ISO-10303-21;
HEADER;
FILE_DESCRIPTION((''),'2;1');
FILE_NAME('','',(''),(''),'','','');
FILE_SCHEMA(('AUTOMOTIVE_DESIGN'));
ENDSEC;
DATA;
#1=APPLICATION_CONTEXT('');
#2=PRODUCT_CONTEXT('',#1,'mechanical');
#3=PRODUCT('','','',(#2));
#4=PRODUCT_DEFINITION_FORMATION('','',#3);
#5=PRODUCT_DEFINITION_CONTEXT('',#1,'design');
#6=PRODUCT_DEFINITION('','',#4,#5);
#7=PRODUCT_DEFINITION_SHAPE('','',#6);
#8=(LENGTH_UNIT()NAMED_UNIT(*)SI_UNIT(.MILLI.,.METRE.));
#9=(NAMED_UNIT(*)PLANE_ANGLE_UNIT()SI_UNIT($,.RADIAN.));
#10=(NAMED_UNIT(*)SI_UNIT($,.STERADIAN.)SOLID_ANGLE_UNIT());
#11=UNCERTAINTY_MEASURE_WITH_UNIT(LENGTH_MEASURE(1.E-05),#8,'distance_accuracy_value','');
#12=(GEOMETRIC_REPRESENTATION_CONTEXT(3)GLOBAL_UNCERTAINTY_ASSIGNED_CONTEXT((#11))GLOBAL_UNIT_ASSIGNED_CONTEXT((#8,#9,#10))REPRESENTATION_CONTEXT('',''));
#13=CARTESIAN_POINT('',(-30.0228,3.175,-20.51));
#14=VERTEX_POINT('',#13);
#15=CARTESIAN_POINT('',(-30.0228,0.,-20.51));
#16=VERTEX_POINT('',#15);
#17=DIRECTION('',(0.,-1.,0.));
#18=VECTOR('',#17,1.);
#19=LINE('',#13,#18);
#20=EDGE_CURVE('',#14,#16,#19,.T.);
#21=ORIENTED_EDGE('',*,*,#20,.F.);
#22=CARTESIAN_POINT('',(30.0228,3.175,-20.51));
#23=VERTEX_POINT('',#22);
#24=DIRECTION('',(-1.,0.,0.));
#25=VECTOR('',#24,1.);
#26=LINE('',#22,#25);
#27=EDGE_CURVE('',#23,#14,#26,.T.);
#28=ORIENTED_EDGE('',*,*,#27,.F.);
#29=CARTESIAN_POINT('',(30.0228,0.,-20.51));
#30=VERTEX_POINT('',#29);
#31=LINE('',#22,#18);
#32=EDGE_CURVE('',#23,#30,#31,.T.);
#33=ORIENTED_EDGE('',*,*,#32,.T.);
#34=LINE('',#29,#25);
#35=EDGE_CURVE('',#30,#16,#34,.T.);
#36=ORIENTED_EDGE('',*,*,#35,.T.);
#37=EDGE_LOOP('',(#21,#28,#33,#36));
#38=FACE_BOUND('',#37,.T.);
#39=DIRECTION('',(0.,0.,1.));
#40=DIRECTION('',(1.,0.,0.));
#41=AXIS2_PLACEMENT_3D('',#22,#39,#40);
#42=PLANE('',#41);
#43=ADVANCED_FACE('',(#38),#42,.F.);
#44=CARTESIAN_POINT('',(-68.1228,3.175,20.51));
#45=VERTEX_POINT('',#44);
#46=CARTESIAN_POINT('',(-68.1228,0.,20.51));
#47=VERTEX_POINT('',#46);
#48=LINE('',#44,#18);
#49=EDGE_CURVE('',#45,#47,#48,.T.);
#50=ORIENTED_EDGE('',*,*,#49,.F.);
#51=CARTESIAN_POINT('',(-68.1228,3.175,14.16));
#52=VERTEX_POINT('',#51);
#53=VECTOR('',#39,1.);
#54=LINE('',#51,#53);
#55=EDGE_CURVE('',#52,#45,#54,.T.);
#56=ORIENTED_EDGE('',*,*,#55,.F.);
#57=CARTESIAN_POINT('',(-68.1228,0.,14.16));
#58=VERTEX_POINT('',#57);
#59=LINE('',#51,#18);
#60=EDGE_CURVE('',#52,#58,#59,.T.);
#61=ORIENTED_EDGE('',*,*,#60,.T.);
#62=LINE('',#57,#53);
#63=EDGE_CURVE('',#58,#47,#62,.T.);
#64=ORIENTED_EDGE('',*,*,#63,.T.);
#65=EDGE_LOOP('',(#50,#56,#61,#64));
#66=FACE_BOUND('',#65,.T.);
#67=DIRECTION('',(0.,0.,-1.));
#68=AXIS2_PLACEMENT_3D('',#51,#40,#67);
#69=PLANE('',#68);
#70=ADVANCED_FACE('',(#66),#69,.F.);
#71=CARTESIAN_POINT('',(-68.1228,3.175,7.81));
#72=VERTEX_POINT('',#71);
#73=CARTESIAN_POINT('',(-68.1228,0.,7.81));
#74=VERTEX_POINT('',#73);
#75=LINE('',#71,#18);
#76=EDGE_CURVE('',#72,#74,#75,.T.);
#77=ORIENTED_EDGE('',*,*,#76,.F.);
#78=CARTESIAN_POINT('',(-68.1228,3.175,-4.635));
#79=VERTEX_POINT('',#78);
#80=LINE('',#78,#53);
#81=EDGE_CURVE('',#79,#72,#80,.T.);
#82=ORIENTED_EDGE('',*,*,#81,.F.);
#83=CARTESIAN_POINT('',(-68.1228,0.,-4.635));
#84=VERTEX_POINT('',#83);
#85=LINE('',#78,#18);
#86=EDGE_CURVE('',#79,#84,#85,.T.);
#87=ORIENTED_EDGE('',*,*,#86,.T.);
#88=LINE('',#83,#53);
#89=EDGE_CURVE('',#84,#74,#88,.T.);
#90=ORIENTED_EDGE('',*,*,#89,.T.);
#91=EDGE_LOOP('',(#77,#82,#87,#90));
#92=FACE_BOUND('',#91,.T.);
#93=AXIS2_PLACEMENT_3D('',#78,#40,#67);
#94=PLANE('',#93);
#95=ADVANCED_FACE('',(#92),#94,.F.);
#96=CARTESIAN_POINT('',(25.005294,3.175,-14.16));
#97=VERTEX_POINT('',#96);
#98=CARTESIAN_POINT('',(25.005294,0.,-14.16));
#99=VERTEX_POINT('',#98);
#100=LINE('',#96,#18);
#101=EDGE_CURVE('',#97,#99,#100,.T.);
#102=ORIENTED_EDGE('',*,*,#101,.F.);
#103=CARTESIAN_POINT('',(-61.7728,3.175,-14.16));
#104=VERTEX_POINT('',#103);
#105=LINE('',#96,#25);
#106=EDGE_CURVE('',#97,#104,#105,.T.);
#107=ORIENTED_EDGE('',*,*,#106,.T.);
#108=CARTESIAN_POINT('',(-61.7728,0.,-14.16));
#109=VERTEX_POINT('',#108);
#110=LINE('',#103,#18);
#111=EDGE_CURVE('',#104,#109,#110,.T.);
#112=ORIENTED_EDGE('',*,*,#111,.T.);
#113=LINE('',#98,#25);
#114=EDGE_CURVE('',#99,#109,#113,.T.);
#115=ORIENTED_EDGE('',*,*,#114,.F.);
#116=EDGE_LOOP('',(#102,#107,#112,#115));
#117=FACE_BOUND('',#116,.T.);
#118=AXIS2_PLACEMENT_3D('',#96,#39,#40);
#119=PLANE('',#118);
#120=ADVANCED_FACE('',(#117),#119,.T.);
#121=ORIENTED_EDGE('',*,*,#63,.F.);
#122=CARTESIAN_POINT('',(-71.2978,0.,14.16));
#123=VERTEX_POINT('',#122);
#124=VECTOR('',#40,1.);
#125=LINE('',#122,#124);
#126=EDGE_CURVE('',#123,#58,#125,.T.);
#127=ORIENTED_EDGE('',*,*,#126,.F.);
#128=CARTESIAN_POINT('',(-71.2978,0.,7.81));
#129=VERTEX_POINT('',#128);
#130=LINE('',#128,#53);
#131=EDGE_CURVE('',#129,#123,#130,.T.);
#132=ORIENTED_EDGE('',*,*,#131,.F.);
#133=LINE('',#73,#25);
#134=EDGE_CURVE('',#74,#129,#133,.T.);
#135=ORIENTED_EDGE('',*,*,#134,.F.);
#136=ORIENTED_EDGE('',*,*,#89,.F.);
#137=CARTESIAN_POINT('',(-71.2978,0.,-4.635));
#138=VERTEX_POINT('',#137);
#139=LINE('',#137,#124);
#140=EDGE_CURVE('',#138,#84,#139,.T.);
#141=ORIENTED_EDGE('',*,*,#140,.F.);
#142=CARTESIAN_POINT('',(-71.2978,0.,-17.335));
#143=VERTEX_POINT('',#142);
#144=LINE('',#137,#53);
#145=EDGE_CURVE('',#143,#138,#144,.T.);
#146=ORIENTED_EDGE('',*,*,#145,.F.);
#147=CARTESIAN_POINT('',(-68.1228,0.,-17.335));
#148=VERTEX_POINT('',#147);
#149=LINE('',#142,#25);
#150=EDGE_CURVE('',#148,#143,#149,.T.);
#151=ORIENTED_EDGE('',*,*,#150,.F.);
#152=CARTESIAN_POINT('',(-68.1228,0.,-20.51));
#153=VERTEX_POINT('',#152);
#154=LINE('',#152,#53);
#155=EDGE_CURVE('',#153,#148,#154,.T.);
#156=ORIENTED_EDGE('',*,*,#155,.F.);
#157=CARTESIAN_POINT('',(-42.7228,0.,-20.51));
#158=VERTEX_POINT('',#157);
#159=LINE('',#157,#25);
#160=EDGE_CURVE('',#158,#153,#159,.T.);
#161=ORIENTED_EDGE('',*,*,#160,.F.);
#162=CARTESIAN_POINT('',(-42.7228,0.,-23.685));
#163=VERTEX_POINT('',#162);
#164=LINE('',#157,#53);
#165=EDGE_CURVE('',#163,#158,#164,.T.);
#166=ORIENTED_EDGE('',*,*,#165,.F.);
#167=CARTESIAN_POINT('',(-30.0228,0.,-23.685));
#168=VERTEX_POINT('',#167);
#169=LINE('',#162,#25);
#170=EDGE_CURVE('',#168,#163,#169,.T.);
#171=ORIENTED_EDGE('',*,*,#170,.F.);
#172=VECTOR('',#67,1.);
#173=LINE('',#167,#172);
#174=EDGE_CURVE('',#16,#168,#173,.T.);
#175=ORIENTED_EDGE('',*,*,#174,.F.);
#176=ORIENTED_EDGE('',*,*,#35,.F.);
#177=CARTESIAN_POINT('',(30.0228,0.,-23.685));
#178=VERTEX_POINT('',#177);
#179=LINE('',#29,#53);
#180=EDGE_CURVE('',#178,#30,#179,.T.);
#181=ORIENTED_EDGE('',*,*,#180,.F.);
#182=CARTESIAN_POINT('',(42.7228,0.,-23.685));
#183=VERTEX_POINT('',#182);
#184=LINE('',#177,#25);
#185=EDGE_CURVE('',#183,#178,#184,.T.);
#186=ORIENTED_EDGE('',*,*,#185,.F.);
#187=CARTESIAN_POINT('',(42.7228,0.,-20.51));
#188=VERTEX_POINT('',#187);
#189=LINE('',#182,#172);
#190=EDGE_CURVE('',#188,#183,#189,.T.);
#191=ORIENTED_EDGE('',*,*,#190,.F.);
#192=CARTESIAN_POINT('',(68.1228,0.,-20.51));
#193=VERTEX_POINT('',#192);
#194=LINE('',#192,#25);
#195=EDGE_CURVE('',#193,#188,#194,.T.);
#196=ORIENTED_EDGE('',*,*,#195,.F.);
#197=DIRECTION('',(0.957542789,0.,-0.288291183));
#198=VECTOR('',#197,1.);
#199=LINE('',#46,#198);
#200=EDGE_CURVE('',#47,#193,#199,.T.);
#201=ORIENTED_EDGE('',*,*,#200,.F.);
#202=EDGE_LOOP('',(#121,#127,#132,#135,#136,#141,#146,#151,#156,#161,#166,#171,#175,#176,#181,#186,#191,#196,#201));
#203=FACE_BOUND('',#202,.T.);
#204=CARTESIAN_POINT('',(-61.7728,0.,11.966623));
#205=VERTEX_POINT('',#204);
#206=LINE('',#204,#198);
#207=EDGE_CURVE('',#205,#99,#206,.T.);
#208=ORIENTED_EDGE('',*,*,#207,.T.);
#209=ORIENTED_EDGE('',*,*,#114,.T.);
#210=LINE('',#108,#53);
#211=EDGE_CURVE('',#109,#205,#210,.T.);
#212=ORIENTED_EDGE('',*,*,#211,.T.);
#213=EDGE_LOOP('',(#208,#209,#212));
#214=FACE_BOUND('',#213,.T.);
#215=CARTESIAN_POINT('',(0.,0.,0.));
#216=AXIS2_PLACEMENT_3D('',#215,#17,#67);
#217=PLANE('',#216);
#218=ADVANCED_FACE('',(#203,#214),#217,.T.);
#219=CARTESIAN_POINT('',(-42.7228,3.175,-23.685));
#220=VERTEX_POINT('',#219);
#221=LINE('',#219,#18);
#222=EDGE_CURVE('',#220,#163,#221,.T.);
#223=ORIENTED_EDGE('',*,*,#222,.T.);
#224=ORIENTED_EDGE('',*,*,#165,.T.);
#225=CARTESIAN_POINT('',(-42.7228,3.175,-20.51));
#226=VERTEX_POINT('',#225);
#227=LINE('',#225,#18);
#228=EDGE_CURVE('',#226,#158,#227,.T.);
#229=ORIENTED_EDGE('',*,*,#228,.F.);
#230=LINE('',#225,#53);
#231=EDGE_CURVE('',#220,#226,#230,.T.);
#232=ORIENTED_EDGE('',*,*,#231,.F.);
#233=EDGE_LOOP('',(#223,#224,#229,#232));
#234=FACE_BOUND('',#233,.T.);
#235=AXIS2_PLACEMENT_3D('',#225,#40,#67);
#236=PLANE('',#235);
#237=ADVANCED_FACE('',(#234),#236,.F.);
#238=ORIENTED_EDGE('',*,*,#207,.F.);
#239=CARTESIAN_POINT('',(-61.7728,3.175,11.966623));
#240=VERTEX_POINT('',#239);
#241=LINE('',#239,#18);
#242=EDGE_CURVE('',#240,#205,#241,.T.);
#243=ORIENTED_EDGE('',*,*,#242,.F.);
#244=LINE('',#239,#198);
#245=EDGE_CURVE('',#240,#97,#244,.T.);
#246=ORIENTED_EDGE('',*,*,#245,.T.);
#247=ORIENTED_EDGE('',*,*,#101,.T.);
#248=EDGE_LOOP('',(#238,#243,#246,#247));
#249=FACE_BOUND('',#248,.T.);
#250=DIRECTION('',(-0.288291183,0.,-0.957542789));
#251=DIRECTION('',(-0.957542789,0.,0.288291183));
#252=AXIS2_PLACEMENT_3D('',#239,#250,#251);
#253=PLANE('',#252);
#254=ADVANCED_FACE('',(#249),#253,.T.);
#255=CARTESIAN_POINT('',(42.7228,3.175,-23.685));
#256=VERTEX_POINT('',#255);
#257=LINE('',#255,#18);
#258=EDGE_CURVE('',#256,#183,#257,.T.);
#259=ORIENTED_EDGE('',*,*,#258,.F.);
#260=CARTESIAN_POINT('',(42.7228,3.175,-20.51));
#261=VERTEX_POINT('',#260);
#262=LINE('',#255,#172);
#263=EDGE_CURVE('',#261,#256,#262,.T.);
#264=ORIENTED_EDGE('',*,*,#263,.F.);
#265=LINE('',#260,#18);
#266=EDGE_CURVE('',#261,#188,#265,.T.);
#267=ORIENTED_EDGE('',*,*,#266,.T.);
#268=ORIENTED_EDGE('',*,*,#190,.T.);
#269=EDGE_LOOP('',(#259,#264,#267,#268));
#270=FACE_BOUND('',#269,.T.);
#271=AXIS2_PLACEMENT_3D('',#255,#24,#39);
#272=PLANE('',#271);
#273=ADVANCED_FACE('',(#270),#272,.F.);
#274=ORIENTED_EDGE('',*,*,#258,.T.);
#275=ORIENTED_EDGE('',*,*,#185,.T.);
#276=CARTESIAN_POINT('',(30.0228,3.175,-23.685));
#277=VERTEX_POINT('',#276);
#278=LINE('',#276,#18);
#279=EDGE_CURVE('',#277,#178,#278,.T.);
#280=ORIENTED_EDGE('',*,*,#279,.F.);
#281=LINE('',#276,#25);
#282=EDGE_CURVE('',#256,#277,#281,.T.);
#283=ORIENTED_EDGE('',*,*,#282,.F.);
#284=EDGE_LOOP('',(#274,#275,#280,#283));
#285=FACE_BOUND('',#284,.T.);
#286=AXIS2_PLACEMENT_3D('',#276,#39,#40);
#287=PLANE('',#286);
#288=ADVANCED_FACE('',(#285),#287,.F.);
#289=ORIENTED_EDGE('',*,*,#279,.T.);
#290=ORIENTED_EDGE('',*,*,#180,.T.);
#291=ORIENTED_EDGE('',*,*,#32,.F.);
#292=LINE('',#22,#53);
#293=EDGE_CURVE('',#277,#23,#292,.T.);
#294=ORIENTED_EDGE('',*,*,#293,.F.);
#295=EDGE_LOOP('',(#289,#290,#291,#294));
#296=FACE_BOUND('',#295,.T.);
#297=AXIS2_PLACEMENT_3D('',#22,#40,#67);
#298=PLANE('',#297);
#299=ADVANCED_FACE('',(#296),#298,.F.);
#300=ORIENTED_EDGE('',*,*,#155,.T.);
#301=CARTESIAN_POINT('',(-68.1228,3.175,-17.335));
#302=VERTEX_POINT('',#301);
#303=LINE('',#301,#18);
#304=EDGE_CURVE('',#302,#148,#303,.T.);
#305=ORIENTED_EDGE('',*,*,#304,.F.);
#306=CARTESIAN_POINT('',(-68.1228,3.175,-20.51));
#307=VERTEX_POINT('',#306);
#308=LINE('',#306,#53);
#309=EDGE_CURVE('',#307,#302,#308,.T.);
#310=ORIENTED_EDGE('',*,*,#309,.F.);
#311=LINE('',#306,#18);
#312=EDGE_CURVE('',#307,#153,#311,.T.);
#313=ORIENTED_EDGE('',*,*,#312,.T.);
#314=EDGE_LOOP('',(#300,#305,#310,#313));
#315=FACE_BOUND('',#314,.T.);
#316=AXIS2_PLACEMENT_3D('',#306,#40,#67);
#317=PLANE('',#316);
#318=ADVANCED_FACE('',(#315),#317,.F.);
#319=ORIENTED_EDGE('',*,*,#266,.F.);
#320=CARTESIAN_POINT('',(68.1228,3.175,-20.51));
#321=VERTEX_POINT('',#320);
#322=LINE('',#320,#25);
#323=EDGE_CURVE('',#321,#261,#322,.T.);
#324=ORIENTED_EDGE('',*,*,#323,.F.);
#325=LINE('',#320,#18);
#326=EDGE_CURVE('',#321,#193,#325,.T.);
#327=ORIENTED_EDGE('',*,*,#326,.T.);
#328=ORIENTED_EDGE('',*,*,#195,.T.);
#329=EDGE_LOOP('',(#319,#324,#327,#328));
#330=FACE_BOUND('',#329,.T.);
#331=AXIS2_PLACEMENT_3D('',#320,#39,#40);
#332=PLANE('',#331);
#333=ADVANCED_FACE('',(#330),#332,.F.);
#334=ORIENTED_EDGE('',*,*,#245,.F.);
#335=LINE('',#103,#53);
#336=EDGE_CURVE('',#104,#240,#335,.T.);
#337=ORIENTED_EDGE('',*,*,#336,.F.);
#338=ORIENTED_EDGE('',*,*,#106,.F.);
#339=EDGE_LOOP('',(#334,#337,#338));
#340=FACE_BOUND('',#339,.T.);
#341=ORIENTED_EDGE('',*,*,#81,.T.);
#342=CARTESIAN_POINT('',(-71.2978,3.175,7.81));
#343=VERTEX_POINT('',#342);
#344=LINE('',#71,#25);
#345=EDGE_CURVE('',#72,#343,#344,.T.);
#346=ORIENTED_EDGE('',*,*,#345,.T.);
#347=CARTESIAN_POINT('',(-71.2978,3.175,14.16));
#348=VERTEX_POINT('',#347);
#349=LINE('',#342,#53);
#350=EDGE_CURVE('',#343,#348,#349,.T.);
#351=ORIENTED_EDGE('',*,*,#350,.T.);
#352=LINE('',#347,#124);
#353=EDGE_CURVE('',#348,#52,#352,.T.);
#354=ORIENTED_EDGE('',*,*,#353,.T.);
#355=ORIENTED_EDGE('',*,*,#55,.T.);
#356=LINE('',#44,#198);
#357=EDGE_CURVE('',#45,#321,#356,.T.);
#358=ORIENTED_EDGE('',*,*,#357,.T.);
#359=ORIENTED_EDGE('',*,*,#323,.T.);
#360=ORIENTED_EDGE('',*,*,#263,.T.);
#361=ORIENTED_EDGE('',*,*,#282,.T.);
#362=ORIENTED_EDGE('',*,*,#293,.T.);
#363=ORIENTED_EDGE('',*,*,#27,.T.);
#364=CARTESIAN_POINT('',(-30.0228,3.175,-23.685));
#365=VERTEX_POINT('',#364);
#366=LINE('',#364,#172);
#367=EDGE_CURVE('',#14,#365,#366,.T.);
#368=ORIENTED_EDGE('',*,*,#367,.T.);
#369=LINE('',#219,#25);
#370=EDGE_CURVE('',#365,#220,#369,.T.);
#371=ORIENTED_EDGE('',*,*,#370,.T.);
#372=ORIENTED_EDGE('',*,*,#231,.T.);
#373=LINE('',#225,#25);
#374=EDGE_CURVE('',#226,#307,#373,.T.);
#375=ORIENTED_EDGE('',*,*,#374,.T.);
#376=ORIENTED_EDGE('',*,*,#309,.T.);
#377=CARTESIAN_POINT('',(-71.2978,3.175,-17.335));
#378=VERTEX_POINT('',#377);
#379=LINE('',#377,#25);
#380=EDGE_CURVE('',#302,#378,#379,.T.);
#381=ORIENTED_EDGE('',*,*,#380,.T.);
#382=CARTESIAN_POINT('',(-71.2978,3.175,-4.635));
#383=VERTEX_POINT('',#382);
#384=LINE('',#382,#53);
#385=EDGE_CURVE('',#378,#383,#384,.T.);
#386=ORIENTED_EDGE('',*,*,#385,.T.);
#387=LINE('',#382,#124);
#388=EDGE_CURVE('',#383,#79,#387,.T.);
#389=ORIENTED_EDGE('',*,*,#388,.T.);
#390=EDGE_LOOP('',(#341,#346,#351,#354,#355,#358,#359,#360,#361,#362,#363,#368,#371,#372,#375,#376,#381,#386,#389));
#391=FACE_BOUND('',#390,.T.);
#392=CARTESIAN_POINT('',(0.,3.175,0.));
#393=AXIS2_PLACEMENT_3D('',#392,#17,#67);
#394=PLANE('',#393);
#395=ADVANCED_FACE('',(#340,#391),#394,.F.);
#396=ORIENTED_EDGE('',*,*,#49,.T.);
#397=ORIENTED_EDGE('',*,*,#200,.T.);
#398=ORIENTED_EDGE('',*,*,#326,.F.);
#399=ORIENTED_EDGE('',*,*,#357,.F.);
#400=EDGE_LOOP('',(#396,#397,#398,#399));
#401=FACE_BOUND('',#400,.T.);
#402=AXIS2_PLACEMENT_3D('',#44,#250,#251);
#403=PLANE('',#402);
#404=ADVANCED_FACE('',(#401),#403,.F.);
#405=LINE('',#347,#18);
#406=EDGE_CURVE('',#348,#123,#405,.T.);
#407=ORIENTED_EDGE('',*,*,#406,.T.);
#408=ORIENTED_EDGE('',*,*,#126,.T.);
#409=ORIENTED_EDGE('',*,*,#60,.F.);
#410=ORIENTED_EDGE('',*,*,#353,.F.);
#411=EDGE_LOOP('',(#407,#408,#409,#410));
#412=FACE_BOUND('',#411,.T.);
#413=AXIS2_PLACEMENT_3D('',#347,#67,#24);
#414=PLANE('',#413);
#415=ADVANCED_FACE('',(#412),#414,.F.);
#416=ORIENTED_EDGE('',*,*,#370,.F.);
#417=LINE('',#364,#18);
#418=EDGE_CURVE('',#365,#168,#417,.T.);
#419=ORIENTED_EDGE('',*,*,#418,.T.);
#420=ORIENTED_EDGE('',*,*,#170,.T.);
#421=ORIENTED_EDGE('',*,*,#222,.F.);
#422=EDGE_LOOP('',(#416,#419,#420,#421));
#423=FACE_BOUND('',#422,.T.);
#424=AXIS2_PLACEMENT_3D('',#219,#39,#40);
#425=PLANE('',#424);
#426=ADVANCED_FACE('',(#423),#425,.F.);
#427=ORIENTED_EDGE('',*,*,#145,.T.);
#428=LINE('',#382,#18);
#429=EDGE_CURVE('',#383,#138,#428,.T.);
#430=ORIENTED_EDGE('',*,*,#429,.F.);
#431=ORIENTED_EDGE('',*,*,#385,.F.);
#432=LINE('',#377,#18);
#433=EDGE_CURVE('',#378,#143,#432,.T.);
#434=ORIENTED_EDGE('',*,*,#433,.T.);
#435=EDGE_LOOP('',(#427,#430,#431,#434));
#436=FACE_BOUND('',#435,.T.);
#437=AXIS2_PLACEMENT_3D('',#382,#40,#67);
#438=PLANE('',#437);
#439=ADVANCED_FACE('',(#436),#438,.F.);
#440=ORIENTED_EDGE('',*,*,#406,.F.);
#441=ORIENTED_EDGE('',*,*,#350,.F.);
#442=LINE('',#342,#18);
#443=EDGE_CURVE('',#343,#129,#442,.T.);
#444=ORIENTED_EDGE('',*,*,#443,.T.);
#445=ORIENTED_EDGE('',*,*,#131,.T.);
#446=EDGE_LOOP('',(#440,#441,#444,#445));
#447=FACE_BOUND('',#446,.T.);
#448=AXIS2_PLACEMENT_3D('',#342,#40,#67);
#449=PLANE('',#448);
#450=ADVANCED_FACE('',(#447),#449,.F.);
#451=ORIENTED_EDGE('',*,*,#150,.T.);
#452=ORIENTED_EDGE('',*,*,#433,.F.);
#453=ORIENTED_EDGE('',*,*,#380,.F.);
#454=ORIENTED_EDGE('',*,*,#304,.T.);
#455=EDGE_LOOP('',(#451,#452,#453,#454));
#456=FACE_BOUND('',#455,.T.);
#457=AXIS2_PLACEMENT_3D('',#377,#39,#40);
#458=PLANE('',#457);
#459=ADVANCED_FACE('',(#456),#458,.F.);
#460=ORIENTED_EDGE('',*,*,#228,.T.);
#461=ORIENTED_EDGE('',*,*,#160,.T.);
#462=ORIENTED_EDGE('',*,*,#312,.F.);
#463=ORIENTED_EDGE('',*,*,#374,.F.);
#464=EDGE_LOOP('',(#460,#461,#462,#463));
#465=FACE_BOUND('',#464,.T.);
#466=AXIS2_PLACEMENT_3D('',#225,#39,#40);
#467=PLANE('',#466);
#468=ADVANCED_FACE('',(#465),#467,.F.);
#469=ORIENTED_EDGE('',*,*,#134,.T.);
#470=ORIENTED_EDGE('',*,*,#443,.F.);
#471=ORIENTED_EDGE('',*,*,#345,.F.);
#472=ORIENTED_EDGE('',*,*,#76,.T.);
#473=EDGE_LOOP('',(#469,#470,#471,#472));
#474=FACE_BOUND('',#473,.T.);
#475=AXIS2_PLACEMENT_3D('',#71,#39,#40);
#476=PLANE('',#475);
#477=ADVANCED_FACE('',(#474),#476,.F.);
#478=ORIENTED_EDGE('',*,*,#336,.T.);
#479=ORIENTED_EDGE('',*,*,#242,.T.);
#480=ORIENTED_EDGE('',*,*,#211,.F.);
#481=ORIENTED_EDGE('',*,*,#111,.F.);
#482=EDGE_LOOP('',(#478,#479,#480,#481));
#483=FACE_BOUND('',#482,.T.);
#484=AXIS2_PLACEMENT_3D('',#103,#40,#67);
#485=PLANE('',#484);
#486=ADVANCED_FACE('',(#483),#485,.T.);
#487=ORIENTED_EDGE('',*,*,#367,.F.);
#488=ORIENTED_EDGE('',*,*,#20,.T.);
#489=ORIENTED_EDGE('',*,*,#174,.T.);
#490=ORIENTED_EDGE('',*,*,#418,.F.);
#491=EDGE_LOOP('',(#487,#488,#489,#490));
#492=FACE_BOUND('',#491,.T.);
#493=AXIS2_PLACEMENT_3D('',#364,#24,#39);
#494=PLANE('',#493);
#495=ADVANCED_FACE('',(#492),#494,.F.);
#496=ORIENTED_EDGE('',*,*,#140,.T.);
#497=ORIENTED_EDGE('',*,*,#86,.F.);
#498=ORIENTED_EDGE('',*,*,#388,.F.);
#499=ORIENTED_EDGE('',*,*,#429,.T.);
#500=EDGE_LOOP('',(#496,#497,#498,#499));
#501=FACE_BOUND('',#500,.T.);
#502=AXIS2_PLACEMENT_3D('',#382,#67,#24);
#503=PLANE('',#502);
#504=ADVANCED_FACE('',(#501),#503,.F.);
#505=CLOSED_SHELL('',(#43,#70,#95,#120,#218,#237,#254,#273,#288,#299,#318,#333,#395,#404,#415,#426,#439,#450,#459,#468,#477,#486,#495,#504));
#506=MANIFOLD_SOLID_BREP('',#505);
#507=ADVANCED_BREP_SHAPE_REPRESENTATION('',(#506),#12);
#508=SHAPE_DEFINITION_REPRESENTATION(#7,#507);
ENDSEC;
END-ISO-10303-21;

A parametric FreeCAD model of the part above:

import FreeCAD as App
import Part
import Sketcher
Q = App.Units.Quantity


def add_polygon(sketch, points):
    """Adds a closed chain of lines whose ends are joined by coincident constraints."""
    first, n = sketch.GeometryCount, len(points)
    for a, b in zip(points, points[1:] + points[:1]):
        sketch.addGeometry(Part.LineSegment(App.Vector(*a, 0), App.Vector(*b, 0)), False)
    for i in range(n):
        sketch.addConstraint(Sketcher.Constraint("Coincident", first + i, 2, first + (i + 1) % n, 1))

doc = App.newDocument("Part")
body = doc.addObject("PartDesign::Body", "Body")

# Sketch on XZ plane
sketch1 = body.newObject("Sketcher::SketchObject", "Sketch")
sketch1.AttachmentSupport = (doc.getObject("XZ_Plane"), [""])
sketch1.MapMode = "FlatFace"
add_polygon(sketch1, [(68.1, -20.5), (42.7, -20.5), (42.7, -23.7), (30, -23.7), (30, -20.5), (-30, -20.5), (-30, -23.7), (-42.7, -23.7), (-42.7, -20.5), (-68.1, -20.5), (-68.1, -17.3), (-71.3, -17.3), (-71.3, -4.6), (-68.1, -4.6), (-68.1, 7.8), (-71.3, 7.8), (-71.3, 14.2), (-68.1, 14.2), (-68.1, 20.5)])  # lines 0-18
add_polygon(sketch1, [(-61.8, 12), (-61.8, -14.2), (25, -14.2)])  # lines 19-21
sketch1.addConstraint([
    Sketcher.Constraint("Horizontal", 0),
    Sketcher.Constraint("Vertical", 1),
    Sketcher.Constraint("Horizontal", 2),
    Sketcher.Constraint("Vertical", 3),
    Sketcher.Constraint("Horizontal", 4),
    Sketcher.Constraint("Vertical", 5),
    Sketcher.Constraint("Horizontal", 6),
    Sketcher.Constraint("Vertical", 7),
    Sketcher.Constraint("Horizontal", 8),
    Sketcher.Constraint("Vertical", 9),
    Sketcher.Constraint("Horizontal", 10),
    Sketcher.Constraint("Vertical", 11),
    Sketcher.Constraint("Horizontal", 12),
    Sketcher.Constraint("Vertical", 13),
    Sketcher.Constraint("Horizontal", 14),
    Sketcher.Constraint("Vertical", 15),
    Sketcher.Constraint("Horizontal", 16),
    Sketcher.Constraint("Vertical", 17),
    Sketcher.Constraint("Vertical", 19),
    Sketcher.Constraint("Horizontal", 20),
    Sketcher.Constraint("Symmetric", 17, 2, 18, 2, -1, 1),
    Sketcher.Constraint("Symmetric", 2, 2, 5, 2, -2),
    Sketcher.Constraint("Symmetric", 0, 2, 7, 2, -2),
    Sketcher.Constraint("Parallel", 18, 21),
    Sketcher.Constraint("Horizontal", 0, 2, 3, 2),
    Sketcher.Constraint("Vertical", 9, 2, 12, 2),
    Sketcher.Constraint("Vertical", 11, 2, 14, 2),
    Sketcher.Constraint("Vertical", 13, 2, 16, 2),
    Sketcher.Constraint("Equal", 16, 1),
    Sketcher.Constraint("Equal", 7, 9),
    Sketcher.Constraint("Equal", 6, 11),
    Sketcher.Constraint("Equal", 15, 17),
    Sketcher.Constraint("DistanceX", 0, 2, 0, 1, Q("1 in")),
    Sketcher.Constraint("DistanceX", 2, 2, 2, 1, Q("0.5 in")),
    Sketcher.Constraint("DistanceY", 15, 1, 15, 2, Q("0.25 in")),
    Sketcher.Constraint("DistanceX", 4, 2, 4, 1, Q("2.364 in")),
    Sketcher.Constraint("DistanceX", 10, 2, 10, 1, Q("0.125 in")),
    Sketcher.Constraint("DistanceX", 9, 2, 19, 2, Q("0.25 in")),
    Sketcher.Constraint("DistanceY", 8, 2, 19, 2, Q("0.25 in")),
    Sketcher.Constraint("DistanceY", 13, 1, 13, 2, 12.445),
    Sketcher.Constraint("DistanceX", 20, 1, 20, 2, 86.778094),
])
pad1 = body.newObject("PartDesign::Pad", "Pad")
pad1.Profile = sketch1
pad1.Length = Q("0.125 in")
pad1.Reversed = True

doc.recompute()
